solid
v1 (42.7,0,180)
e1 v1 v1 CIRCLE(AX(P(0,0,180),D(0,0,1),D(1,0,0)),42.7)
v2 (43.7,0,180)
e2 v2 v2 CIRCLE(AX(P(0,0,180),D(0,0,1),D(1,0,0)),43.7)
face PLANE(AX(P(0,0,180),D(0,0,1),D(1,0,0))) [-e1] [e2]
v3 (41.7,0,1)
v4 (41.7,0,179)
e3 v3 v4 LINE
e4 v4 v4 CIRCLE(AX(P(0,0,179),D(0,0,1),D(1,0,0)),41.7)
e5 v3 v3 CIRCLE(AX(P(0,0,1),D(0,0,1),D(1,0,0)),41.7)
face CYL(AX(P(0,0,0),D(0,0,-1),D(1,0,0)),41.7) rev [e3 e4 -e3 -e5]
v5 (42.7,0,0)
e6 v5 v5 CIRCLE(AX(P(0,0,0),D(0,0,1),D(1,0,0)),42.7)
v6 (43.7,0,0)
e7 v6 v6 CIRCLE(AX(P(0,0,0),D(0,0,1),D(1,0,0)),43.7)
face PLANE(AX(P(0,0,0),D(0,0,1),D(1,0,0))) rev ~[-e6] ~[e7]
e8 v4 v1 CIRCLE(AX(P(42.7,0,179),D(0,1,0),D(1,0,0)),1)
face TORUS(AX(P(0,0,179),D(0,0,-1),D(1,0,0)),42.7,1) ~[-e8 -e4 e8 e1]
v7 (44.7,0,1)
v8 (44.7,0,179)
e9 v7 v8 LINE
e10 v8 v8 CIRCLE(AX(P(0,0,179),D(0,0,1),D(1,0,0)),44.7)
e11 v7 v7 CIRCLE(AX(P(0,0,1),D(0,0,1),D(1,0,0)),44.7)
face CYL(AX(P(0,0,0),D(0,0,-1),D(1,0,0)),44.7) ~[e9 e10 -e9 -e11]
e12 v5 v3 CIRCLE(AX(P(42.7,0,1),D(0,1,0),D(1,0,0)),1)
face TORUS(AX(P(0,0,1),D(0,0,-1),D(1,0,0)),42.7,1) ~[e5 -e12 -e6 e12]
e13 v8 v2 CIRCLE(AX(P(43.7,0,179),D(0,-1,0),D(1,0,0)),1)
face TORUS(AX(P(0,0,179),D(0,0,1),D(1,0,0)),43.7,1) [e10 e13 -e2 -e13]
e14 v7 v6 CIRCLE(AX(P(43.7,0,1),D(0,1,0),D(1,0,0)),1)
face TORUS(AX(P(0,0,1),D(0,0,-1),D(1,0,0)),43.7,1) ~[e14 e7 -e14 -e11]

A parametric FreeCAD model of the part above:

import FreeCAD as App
import Part
import Sketcher
Q = App.Units.Quantity


def edges_at(feature, points):
    """Names of the edges that pass closest to the given points."""
    edges = feature.Shape.Edges
    near = lambda p: min(range(len(edges)), key=lambda i: edges[i].distToShape(Part.Vertex(*p))[0])
    return sorted({f"Edge{near(p) + 1}" for p in points})

doc = App.newDocument("Part")
body = doc.addObject("PartDesign::Body", "Body")

# Sketch on XY plane
sketch1 = body.newObject("Sketcher::SketchObject", "Sketch")
sketch1.AttachmentSupport = (doc.getObject("XY_Plane"), [""])
sketch1.MapMode = "FlatFace"
sketch1.addGeometry(Part.Circle(App.Vector(0, 0, 0), App.Vector(0, 0, 1), 44.7), False)
sketch1.addGeometry(Part.Circle(App.Vector(0, 0, 0), App.Vector(0, 0, 1), 41.7), False)
sketch1.addConstraint(Sketcher.Constraint("Coincident", 0, 3, -1, 1))
sketch1.addConstraint(Sketcher.Constraint("Coincident", 1, 3, -1, 1))
sketch1.addConstraint(Sketcher.Constraint("Diameter", 0, Q("89.4 mm")))
sketch1.addConstraint(Sketcher.Constraint("Diameter", 1, Q("83.4 mm")))
pad1 = body.newObject("PartDesign::Pad", "Pad")
pad1.Profile = sketch1
pad1.Length = 180
doc.recompute()

fillet = body.newObject("PartDesign::Fillet", "Fillet")
fillet.Base = (pad1, edges_at(pad1, [(-44.7, 0, 180), (-41.7, 0, 180)]))
fillet.Radius = 1
doc.recompute()

fillet2 = body.newObject("PartDesign::Fillet", "Fillet001")
fillet2.Base = (fillet, edges_at(fillet, [(-41.7, 0, 0), (-44.7, 0, 0)]))
fillet2.Radius = 1

doc.recompute()
